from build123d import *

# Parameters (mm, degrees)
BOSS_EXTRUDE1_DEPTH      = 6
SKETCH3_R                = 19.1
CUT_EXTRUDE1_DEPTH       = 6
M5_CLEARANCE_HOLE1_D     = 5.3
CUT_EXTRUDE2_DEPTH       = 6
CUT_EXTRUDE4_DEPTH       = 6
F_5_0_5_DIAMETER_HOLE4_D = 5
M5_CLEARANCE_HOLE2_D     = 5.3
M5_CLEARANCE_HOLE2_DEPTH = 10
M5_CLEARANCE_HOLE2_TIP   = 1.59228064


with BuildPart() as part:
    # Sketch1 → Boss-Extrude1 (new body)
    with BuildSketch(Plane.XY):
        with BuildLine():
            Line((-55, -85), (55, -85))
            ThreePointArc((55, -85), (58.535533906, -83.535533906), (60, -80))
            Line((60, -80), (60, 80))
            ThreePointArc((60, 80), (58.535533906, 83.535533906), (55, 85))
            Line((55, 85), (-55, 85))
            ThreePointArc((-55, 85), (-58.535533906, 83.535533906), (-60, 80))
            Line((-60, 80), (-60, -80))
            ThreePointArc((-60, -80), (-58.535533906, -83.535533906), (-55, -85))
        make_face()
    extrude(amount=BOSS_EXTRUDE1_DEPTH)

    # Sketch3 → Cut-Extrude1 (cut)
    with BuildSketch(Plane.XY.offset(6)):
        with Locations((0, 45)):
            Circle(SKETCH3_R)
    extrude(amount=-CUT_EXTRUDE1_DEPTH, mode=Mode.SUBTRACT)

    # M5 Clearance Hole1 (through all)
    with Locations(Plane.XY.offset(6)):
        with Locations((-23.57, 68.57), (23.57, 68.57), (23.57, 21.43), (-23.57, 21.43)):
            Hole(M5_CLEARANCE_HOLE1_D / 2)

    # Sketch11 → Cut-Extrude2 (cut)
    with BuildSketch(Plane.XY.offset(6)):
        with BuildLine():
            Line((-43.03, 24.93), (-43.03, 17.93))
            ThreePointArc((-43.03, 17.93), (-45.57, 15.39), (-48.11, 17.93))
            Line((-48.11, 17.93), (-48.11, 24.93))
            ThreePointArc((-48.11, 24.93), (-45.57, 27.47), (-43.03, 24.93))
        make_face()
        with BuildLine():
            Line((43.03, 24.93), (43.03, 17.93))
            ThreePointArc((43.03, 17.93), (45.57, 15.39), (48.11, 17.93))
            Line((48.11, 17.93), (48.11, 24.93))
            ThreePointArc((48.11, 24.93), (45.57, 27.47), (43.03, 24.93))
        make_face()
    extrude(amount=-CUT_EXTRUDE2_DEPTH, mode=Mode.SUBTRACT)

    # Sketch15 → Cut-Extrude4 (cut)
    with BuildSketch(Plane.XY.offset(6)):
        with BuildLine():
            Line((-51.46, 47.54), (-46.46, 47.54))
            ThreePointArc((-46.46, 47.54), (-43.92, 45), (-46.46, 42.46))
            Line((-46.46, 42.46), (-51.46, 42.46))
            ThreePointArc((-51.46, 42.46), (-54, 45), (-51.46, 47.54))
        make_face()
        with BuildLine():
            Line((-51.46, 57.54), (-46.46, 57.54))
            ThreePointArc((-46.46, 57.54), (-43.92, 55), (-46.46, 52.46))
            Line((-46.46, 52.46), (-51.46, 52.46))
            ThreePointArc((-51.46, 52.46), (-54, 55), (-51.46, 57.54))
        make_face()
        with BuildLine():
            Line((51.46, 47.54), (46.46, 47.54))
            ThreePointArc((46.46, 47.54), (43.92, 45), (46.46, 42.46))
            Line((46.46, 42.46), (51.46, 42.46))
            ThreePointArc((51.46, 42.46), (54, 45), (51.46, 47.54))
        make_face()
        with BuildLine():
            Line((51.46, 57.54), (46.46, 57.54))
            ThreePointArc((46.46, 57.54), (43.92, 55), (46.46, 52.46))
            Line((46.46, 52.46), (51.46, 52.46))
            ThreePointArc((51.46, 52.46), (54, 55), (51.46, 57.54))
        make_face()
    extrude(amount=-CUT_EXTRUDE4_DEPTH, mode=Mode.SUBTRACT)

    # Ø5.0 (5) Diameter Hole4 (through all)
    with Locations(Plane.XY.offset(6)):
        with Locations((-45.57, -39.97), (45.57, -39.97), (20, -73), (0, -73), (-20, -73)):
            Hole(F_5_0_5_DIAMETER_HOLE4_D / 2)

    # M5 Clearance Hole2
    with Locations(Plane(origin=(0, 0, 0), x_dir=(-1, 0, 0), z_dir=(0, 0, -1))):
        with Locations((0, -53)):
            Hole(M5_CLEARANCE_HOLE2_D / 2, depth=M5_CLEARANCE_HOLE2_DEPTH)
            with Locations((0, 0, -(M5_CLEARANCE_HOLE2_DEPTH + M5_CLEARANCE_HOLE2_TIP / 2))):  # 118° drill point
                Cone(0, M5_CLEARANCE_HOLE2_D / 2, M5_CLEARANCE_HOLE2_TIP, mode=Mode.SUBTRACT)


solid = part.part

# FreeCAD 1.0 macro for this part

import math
import FreeCAD as App
import Part
import Sketcher

doc = App.newDocument("Part")
params = doc.addObject("Spreadsheet::Sheet", "Params")
for row, (alias, value) in enumerate([
    ("sketch1_radius", "5 mm"),
    ("sketch1_width", "110 mm"),
    ("sketch1_height", "160 mm"),
    ("pad1_length", "6 mm"),
    ("sketch2_diameter", "38.2 mm"),
    ("pocket1_length", "6 mm"),
    ("sketch3_diameter", "5.3 mm"),
    ("hole_diameter", "5.3 mm"),
    ("sketch4_height", "7 mm"),
    ("sketch4_radius", "2.54 mm"),
    ("pocket2_length", "6 mm"),
    ("sketch5_width", "5 mm"),
    ("sketch5_radius", "2.54 mm"),
    ("pocket3_length", "6 mm"),
    ("sketch6_diameter", "5 mm"),
    ("hole2_diameter", "5 mm"),
    ("sketch7_diameter", "5.3 mm"),
    ("hole3_diameter", "5.3 mm"),
    ("hole3_depth", "10 mm"),
], start=1):
    params.set(f"A{row}", alias)
    params.set(f"B{row}", "=" + value)
    params.setAlias(f"B{row}", alias)

body = doc.addObject("PartDesign::Body", "Body")

sketch1 = body.newObject("Sketcher::SketchObject", "Sketch")
sketch1.AttachmentSupport = (doc.getObject("XY_Plane"), [""])
sketch1.MapMode = "FlatFace"
sketch1.addGeometry([
    Part.LineSegment(App.Vector(-55, -85, 0), App.Vector(55, -85, 0)),
    Part.ArcOfCircle(Part.Circle(App.Vector(55, -80, 0), App.Vector(0, 0, 1), 5), math.radians(-90), math.radians(0)),
    Part.LineSegment(App.Vector(60, -80, 0), App.Vector(60, 80, 0)),
    Part.ArcOfCircle(Part.Circle(App.Vector(55, 80, 0), App.Vector(0, 0, 1), 5), math.radians(0), math.radians(90)),
    Part.LineSegment(App.Vector(55, 85, 0), App.Vector(-55, 85, 0)),
    Part.ArcOfCircle(Part.Circle(App.Vector(-55, 80, 0), App.Vector(0, 0, 1), 5), math.radians(90), math.radians(180)),
    Part.LineSegment(App.Vector(-60, 80, 0), App.Vector(-60, -80, 0)),
    Part.ArcOfCircle(Part.Circle(App.Vector(-55, -80, 0), App.Vector(0, 0, 1), 5), math.radians(180), math.radians(270)),
], False)
sketch1.addConstraint([
    Sketcher.Constraint("Tangent", 0, 2, 1, 1),
    Sketcher.Constraint("Tangent", 1, 2, 2, 1),
    Sketcher.Constraint("Tangent", 2, 2, 3, 1),
    Sketcher.Constraint("Tangent", 3, 2, 4, 1),
    Sketcher.Constraint("Tangent", 4, 2, 5, 1),
    Sketcher.Constraint("Tangent", 5, 2, 6, 1),
    Sketcher.Constraint("Tangent", 6, 2, 7, 1),
    Sketcher.Constraint("Tangent", 7, 2, 0, 1),
    Sketcher.Constraint("Horizontal", 0),
    Sketcher.Constraint("Vertical", 2),
    Sketcher.Constraint("Horizontal", 4),
    Sketcher.Constraint("Vertical", 6),
    Sketcher.Constraint("Equal", 1, 3),
    Sketcher.Constraint("Equal", 3, 5),
    Sketcher.Constraint("Equal", 5, 7),
    Sketcher.Constraint("Symmetric", 1, 3, 5, 3, -1, 1),
    Sketcher.Constraint("Radius", 1, 5.0),
    Sketcher.Constraint("DistanceX", 0, 1, 0, 2, 110.0),
    Sketcher.Constraint("DistanceY", 2, 1, 2, 2, 160.0),
])
sketch1.setExpression("Constraints[16]", "Params.sketch1_radius")
sketch1.setExpression("Constraints[17]", "Params.sketch1_width")
sketch1.setExpression("Constraints[18]", "Params.sketch1_height")
pad1 = body.newObject("PartDesign::Pad", "Pad")
pad1.Profile = sketch1
pad1.setExpression("Length", "Params.pad1_length")

sketch2 = body.newObject("Sketcher::SketchObject", "Sketch001")
sketch2.AttachmentSupport = (doc.getObject("XY_Plane"), [""])
sketch2.MapMode = "FlatFace"
sketch2.AttachmentOffset = App.Placement(App.Vector(0, 0, 6), App.Rotation())
sketch2.addGeometry(Part.Circle(App.Vector(0, 45, 0), App.Vector(0, 0, 1), 19.1), False)
sketch2.addConstraint([
    Sketcher.Constraint("PointOnObject", 0, 3, -2),
    Sketcher.Constraint("Diameter", 0, 38.2),
    Sketcher.Constraint("DistanceY", -1, 1, 0, 3, 45.0),
])
sketch2.setExpression("Constraints[1]", "Params.sketch2_diameter")
pocket1 = body.newObject("PartDesign::Pocket", "Pocket")
pocket1.Profile = sketch2
pocket1.setExpression("Length", "Params.pocket1_length")

sketch3 = body.newObject("Sketcher::SketchObject", "Sketch002")
sketch3.AttachmentSupport = (doc.getObject("XY_Plane"), [""])
sketch3.MapMode = "FlatFace"
sketch3.AttachmentOffset = App.Placement(App.Vector(0, 0, 6), App.Rotation())
sketch3.addGeometry([
    Part.Circle(App.Vector(-23.57, 68.57, 0), App.Vector(0, 0, 1), 2.65),
    Part.Circle(App.Vector(23.57, 68.57, 0), App.Vector(0, 0, 1), 2.65),
    Part.Circle(App.Vector(23.57, 21.43, 0), App.Vector(0, 0, 1), 2.65),
    Part.Circle(App.Vector(-23.57, 21.43, 0), App.Vector(0, 0, 1), 2.65),
], False)
sketch3.addConstraint([
    Sketcher.Constraint("Equal", 0, 1),
    Sketcher.Constraint("Equal", 1, 2),
    Sketcher.Constraint("Equal", 2, 3),
    Sketcher.Constraint("Symmetric", 0, 3, 1, 3, -2),
    Sketcher.Constraint("Symmetric", 2, 3, 3, 3, -2),
    Sketcher.Constraint("Vertical", 1, 3, 2, 3),
    Sketcher.Constraint("Diameter", 0, 5.3),
    Sketcher.Constraint("DistanceX", 0, 3, -1, 1, 23.57),
    Sketcher.Constraint("DistanceY", -1, 1, 0, 3, 68.57),
    Sketcher.Constraint("DistanceY", -1, 1, 2, 3, 21.43),
])
sketch3.setExpression("Constraints[6]", "Params.sketch3_diameter")
doc.recompute()
hole = body.newObject("PartDesign::Hole", "Hole")
hole.Profile = sketch3
hole.ThreadType = "None"
hole.setExpression("Diameter", "Params.hole_diameter")
hole.DepthType = "ThroughAll"

sketch4 = body.newObject("Sketcher::SketchObject", "Sketch003")
sketch4.AttachmentSupport = (doc.getObject("XY_Plane"), [""])
sketch4.MapMode = "FlatFace"
sketch4.AttachmentOffset = App.Placement(App.Vector(0, 0, 6), App.Rotation())
sketch4.addGeometry([
    Part.LineSegment(App.Vector(-43.03, 17.93, 0), App.Vector(-43.03, 24.93, 0)),
    Part.ArcOfCircle(Part.Circle(App.Vector(-45.57, 24.93, 0), App.Vector(0, 0, 1), 2.54), math.radians(0), math.radians(180)),
    Part.LineSegment(App.Vector(-48.11, 24.93, 0), App.Vector(-48.11, 17.93, 0)),
    Part.ArcOfCircle(Part.Circle(App.Vector(-45.57, 17.93, 0), App.Vector(0, 0, 1), 2.54), math.radians(180), math.radians(360)),
    Part.LineSegment(App.Vector(43.03, 24.93, 0), App.Vector(43.03, 17.93, 0)),
    Part.ArcOfCircle(Part.Circle(App.Vector(45.57, 17.93, 0), App.Vector(0, 0, 1), 2.54), math.radians(180), math.radians(360)),
    Part.LineSegment(App.Vector(48.11, 17.93, 0), App.Vector(48.11, 24.93, 0)),
    Part.ArcOfCircle(Part.Circle(App.Vector(45.57, 24.93, 0), App.Vector(0, 0, 1), 2.54), math.radians(0), math.radians(180)),
], False)
sketch4.addConstraint([
    Sketcher.Constraint("Tangent", 0, 2, 1, 1),
    Sketcher.Constraint("Tangent", 1, 2, 2, 1),
    Sketcher.Constraint("Tangent", 2, 2, 3, 1),
    Sketcher.Constraint("Tangent", 3, 2, 0, 1),
    Sketcher.Constraint("Tangent", 4, 2, 5, 1),
    Sketcher.Constraint("Tangent", 5, 2, 6, 1),
    Sketcher.Constraint("Tangent", 6, 2, 7, 1),
    Sketcher.Constraint("Tangent", 7, 2, 4, 1),
    Sketcher.Constraint("Vertical", 0),
    Sketcher.Constraint("Vertical", 2),
    Sketcher.Constraint("Vertical", 4),
    Sketcher.Constraint("Vertical", 6),
    Sketcher.Constraint("Equal", 3, 5),
    Sketcher.Constraint("Symmetric", 3, 3, 5, 3, -2),
    Sketcher.Constraint("Horizontal", 1, 3, 7, 3),
    Sketcher.Constraint("DistanceY", 0, 1, 0, 2, 7.0),
    Sketcher.Constraint("Radius", 1, 2.54),
    Sketcher.Constraint("DistanceX", 0, 2, 7, 3, 88.6),
    Sketcher.Constraint("DistanceY", -1, 1, 1, 3, 24.93),
])
sketch4.setExpression("Constraints[15]", "Params.sketch4_height")
sketch4.setExpression("Constraints[16]", "Params.sketch4_radius")
pocket2 = body.newObject("PartDesign::Pocket", "Pocket001")
pocket2.Profile = sketch4
pocket2.setExpression("Length", "Params.pocket2_length")

sketch5 = body.newObject("Sketcher::SketchObject", "Sketch004")
sketch5.AttachmentSupport = (doc.getObject("XY_Plane"), [""])
sketch5.MapMode = "FlatFace"
sketch5.AttachmentOffset = App.Placement(App.Vector(0, 0, 6), App.Rotation())
sketch5.addGeometry([
    Part.LineSegment(App.Vector(-46.46, 47.54, 0), App.Vector(-51.46, 47.54, 0)),
    Part.ArcOfCircle(Part.Circle(App.Vector(-51.46, 45, 0), App.Vector(0, 0, 1), 2.54), math.radians(90), math.radians(270)),
    Part.LineSegment(App.Vector(-51.46, 42.46, 0), App.Vector(-46.46, 42.46, 0)),
    Part.ArcOfCircle(Part.Circle(App.Vector(-46.46, 45, 0), App.Vector(0, 0, 1), 2.54), math.radians(-90), math.radians(90)),
    Part.LineSegment(App.Vector(-46.46, 57.54, 0), App.Vector(-51.46, 57.54, 0)),
    Part.ArcOfCircle(Part.Circle(App.Vector(-51.46, 55, 0), App.Vector(0, 0, 1), 2.54), math.radians(90), math.radians(270)),
    Part.LineSegment(App.Vector(-51.46, 52.46, 0), App.Vector(-46.46, 52.46, 0)),
    Part.ArcOfCircle(Part.Circle(App.Vector(-46.46, 55, 0), App.Vector(0, 0, 1), 2.54), math.radians(-90), math.radians(90)),
    Part.LineSegment(App.Vector(51.46, 47.54, 0), App.Vector(46.46, 47.54, 0)),
    Part.ArcOfCircle(Part.Circle(App.Vector(46.46, 45, 0), App.Vector(0, 0, 1), 2.54), math.radians(90), math.radians(270)),
    Part.LineSegment(App.Vector(46.46, 42.46, 0), App.Vector(51.46, 42.46, 0)),
    Part.ArcOfCircle(Part.Circle(App.Vector(51.46, 45, 0), App.Vector(0, 0, 1), 2.54), math.radians(-90), math.radians(90)),
    Part.LineSegment(App.Vector(51.46, 57.54, 0), App.Vector(46.46, 57.54, 0)),
    Part.ArcOfCircle(Part.Circle(App.Vector(46.46, 55, 0), App.Vector(0, 0, 1), 2.54), math.radians(90), math.radians(270)),
    Part.LineSegment(App.Vector(46.46, 52.46, 0), App.Vector(51.46, 52.46, 0)),
    Part.ArcOfCircle(Part.Circle(App.Vector(51.46, 55, 0), App.Vector(0, 0, 1), 2.54), math.radians(-90), math.radians(90)),
], False)
sketch5.addConstraint([
    Sketcher.Constraint("Tangent", 0, 2, 1, 1),
    Sketcher.Constraint("Tangent", 1, 2, 2, 1),
    Sketcher.Constraint("Tangent", 2, 2, 3, 1),
    Sketcher.Constraint("Tangent", 3, 2, 0, 1),
    Sketcher.Constraint("Tangent", 4, 2, 5, 1),
    Sketcher.Constraint("Tangent", 5, 2, 6, 1),
    Sketcher.Constraint("Tangent", 6, 2, 7, 1),
    Sketcher.Constraint("Tangent", 7, 2, 4, 1),
    Sketcher.Constraint("Tangent", 8, 2, 9, 1),
    Sketcher.Constraint("Tangent", 9, 2, 10, 1),
    Sketcher.Constraint("Tangent", 10, 2, 11, 1),
    Sketcher.Constraint("Tangent", 11, 2, 8, 1),
    Sketcher.Constraint("Tangent", 12, 2, 13, 1),
    Sketcher.Constraint("Tangent", 13, 2, 14, 1),
    Sketcher.Constraint("Tangent", 14, 2, 15, 1),
    Sketcher.Constraint("Tangent", 15, 2, 12, 1),
    Sketcher.Constraint("Horizontal", 0),
    Sketcher.Constraint("Horizontal", 2),
    Sketcher.Constraint("Horizontal", 4),
    Sketcher.Constraint("Horizontal", 6),
    Sketcher.Constraint("Horizontal", 8),
    Sketcher.Constraint("Horizontal", 10),
    Sketcher.Constraint("Horizontal", 12),
    Sketcher.Constraint("Horizontal", 14),
    Sketcher.Constraint("Equal", 3, 5),
    Sketcher.Constraint("Equal", 7, 9),
    Sketcher.Constraint("Equal", 11, 13),
    Sketcher.Constraint("Symmetric", 3, 3, 9, 3, -2),
    Sketcher.Constraint("Symmetric", 7, 3, 13, 3, -2),
    Sketcher.Constraint("Vertical", 1, 3, 5, 3),
    Sketcher.Constraint("Vertical", 3, 3, 7, 3),
    Sketcher.Constraint("Vertical", 11, 3, 15, 3),
    Sketcher.Constraint("Equal", 6, 8),
    Sketcher.Constraint("DistanceX", 0, 2, 0, 1, 5.0),
    Sketcher.Constraint("Radius", 1, 2.54),
    Sketcher.Constraint("DistanceY", -1, 1, 1, 3, 45.0),
    Sketcher.Constraint("DistanceY", -1, 1, 5, 3, 55.0),
    Sketcher.Constraint("DistanceX", 1, 3, -1, 1, 51.46),
])
sketch5.setExpression("Constraints[33]", "Params.sketch5_width")
sketch5.setExpression("Constraints[34]", "Params.sketch5_radius")
pocket3 = body.newObject("PartDesign::Pocket", "Pocket002")
pocket3.Profile = sketch5
pocket3.setExpression("Length", "Params.pocket3_length")

sketch6 = body.newObject("Sketcher::SketchObject", "Sketch005")
sketch6.AttachmentSupport = (doc.getObject("XY_Plane"), [""])
sketch6.MapMode = "FlatFace"
sketch6.AttachmentOffset = App.Placement(App.Vector(0, 0, 6), App.Rotation())
sketch6.addGeometry([
    Part.Circle(App.Vector(-45.57, -39.97, 0), App.Vector(0, 0, 1), 2.5),
    Part.Circle(App.Vector(45.57, -39.97, 0), App.Vector(0, 0, 1), 2.5),
    Part.Circle(App.Vector(20, -73, 0), App.Vector(0, 0, 1), 2.5),
    Part.Circle(App.Vector(0, -73, 0), App.Vector(0, 0, 1), 2.5),
    Part.Circle(App.Vector(-20, -73, 0), App.Vector(0, 0, 1), 2.5),
], False)
sketch6.addConstraint([
    Sketcher.Constraint("Equal", 0, 1),
    Sketcher.Constraint("Equal", 1, 2),
    Sketcher.Constraint("Equal", 2, 3),
    Sketcher.Constraint("Equal", 3, 4),
    Sketcher.Constraint("Symmetric", 0, 3, 1, 3, -2),
    Sketcher.Constraint("Symmetric", 2, 3, 4, 3, -2),
    Sketcher.Constraint("PointOnObject", 3, 3, -2),
    Sketcher.Constraint("Horizontal", 2, 3, 3, 3),
    Sketcher.Constraint("Diameter", 0, 5.0),
    Sketcher.Constraint("DistanceX", -1, 1, 2, 3, 20.0),
    Sketcher.Constraint("DistanceY", 2, 3, -1, 1, 73.0),
    Sketcher.Constraint("DistanceX", 0, 3, -1, 1, 45.57),
    Sketcher.Constraint("DistanceY", 0, 3, -1, 1, 39.97),
])
sketch6.setExpression("Constraints[8]", "Params.sketch6_diameter")
doc.recompute()
hole2 = body.newObject("PartDesign::Hole", "Hole001")
hole2.Profile = sketch6
hole2.ThreadType = "None"
hole2.setExpression("Diameter", "Params.hole2_diameter")
hole2.DepthType = "ThroughAll"

sketch7 = body.newObject("Sketcher::SketchObject", "Sketch006")
sketch7.AttachmentSupport = (doc.getObject("XY_Plane"), [""])
sketch7.MapMode = "FlatFace"
sketch7.addGeometry(Part.Circle(App.Vector(0, -53, 0), App.Vector(0, 0, 1), 2.65), False)
sketch7.addConstraint([
    Sketcher.Constraint("PointOnObject", 0, 3, -2),
    Sketcher.Constraint("Diameter", 0, 5.3),
    Sketcher.Constraint("DistanceY", 0, 3, -1, 1, 53.0),
])
sketch7.setExpression("Constraints[1]", "Params.sketch7_diameter")
doc.recompute()
hole3 = body.newObject("PartDesign::Hole", "Hole002")
hole3.Profile = sketch7
hole3.ThreadType = "None"
hole3.setExpression("Diameter", "Params.hole3_diameter")
hole3.DepthType = "Dimension"
hole3.setExpression("Depth", "Params.hole3_depth")
hole3.DrillPoint = "Angled"
hole3.DrillPointAngle = 118
hole3.Reversed = True

doc.recompute()
